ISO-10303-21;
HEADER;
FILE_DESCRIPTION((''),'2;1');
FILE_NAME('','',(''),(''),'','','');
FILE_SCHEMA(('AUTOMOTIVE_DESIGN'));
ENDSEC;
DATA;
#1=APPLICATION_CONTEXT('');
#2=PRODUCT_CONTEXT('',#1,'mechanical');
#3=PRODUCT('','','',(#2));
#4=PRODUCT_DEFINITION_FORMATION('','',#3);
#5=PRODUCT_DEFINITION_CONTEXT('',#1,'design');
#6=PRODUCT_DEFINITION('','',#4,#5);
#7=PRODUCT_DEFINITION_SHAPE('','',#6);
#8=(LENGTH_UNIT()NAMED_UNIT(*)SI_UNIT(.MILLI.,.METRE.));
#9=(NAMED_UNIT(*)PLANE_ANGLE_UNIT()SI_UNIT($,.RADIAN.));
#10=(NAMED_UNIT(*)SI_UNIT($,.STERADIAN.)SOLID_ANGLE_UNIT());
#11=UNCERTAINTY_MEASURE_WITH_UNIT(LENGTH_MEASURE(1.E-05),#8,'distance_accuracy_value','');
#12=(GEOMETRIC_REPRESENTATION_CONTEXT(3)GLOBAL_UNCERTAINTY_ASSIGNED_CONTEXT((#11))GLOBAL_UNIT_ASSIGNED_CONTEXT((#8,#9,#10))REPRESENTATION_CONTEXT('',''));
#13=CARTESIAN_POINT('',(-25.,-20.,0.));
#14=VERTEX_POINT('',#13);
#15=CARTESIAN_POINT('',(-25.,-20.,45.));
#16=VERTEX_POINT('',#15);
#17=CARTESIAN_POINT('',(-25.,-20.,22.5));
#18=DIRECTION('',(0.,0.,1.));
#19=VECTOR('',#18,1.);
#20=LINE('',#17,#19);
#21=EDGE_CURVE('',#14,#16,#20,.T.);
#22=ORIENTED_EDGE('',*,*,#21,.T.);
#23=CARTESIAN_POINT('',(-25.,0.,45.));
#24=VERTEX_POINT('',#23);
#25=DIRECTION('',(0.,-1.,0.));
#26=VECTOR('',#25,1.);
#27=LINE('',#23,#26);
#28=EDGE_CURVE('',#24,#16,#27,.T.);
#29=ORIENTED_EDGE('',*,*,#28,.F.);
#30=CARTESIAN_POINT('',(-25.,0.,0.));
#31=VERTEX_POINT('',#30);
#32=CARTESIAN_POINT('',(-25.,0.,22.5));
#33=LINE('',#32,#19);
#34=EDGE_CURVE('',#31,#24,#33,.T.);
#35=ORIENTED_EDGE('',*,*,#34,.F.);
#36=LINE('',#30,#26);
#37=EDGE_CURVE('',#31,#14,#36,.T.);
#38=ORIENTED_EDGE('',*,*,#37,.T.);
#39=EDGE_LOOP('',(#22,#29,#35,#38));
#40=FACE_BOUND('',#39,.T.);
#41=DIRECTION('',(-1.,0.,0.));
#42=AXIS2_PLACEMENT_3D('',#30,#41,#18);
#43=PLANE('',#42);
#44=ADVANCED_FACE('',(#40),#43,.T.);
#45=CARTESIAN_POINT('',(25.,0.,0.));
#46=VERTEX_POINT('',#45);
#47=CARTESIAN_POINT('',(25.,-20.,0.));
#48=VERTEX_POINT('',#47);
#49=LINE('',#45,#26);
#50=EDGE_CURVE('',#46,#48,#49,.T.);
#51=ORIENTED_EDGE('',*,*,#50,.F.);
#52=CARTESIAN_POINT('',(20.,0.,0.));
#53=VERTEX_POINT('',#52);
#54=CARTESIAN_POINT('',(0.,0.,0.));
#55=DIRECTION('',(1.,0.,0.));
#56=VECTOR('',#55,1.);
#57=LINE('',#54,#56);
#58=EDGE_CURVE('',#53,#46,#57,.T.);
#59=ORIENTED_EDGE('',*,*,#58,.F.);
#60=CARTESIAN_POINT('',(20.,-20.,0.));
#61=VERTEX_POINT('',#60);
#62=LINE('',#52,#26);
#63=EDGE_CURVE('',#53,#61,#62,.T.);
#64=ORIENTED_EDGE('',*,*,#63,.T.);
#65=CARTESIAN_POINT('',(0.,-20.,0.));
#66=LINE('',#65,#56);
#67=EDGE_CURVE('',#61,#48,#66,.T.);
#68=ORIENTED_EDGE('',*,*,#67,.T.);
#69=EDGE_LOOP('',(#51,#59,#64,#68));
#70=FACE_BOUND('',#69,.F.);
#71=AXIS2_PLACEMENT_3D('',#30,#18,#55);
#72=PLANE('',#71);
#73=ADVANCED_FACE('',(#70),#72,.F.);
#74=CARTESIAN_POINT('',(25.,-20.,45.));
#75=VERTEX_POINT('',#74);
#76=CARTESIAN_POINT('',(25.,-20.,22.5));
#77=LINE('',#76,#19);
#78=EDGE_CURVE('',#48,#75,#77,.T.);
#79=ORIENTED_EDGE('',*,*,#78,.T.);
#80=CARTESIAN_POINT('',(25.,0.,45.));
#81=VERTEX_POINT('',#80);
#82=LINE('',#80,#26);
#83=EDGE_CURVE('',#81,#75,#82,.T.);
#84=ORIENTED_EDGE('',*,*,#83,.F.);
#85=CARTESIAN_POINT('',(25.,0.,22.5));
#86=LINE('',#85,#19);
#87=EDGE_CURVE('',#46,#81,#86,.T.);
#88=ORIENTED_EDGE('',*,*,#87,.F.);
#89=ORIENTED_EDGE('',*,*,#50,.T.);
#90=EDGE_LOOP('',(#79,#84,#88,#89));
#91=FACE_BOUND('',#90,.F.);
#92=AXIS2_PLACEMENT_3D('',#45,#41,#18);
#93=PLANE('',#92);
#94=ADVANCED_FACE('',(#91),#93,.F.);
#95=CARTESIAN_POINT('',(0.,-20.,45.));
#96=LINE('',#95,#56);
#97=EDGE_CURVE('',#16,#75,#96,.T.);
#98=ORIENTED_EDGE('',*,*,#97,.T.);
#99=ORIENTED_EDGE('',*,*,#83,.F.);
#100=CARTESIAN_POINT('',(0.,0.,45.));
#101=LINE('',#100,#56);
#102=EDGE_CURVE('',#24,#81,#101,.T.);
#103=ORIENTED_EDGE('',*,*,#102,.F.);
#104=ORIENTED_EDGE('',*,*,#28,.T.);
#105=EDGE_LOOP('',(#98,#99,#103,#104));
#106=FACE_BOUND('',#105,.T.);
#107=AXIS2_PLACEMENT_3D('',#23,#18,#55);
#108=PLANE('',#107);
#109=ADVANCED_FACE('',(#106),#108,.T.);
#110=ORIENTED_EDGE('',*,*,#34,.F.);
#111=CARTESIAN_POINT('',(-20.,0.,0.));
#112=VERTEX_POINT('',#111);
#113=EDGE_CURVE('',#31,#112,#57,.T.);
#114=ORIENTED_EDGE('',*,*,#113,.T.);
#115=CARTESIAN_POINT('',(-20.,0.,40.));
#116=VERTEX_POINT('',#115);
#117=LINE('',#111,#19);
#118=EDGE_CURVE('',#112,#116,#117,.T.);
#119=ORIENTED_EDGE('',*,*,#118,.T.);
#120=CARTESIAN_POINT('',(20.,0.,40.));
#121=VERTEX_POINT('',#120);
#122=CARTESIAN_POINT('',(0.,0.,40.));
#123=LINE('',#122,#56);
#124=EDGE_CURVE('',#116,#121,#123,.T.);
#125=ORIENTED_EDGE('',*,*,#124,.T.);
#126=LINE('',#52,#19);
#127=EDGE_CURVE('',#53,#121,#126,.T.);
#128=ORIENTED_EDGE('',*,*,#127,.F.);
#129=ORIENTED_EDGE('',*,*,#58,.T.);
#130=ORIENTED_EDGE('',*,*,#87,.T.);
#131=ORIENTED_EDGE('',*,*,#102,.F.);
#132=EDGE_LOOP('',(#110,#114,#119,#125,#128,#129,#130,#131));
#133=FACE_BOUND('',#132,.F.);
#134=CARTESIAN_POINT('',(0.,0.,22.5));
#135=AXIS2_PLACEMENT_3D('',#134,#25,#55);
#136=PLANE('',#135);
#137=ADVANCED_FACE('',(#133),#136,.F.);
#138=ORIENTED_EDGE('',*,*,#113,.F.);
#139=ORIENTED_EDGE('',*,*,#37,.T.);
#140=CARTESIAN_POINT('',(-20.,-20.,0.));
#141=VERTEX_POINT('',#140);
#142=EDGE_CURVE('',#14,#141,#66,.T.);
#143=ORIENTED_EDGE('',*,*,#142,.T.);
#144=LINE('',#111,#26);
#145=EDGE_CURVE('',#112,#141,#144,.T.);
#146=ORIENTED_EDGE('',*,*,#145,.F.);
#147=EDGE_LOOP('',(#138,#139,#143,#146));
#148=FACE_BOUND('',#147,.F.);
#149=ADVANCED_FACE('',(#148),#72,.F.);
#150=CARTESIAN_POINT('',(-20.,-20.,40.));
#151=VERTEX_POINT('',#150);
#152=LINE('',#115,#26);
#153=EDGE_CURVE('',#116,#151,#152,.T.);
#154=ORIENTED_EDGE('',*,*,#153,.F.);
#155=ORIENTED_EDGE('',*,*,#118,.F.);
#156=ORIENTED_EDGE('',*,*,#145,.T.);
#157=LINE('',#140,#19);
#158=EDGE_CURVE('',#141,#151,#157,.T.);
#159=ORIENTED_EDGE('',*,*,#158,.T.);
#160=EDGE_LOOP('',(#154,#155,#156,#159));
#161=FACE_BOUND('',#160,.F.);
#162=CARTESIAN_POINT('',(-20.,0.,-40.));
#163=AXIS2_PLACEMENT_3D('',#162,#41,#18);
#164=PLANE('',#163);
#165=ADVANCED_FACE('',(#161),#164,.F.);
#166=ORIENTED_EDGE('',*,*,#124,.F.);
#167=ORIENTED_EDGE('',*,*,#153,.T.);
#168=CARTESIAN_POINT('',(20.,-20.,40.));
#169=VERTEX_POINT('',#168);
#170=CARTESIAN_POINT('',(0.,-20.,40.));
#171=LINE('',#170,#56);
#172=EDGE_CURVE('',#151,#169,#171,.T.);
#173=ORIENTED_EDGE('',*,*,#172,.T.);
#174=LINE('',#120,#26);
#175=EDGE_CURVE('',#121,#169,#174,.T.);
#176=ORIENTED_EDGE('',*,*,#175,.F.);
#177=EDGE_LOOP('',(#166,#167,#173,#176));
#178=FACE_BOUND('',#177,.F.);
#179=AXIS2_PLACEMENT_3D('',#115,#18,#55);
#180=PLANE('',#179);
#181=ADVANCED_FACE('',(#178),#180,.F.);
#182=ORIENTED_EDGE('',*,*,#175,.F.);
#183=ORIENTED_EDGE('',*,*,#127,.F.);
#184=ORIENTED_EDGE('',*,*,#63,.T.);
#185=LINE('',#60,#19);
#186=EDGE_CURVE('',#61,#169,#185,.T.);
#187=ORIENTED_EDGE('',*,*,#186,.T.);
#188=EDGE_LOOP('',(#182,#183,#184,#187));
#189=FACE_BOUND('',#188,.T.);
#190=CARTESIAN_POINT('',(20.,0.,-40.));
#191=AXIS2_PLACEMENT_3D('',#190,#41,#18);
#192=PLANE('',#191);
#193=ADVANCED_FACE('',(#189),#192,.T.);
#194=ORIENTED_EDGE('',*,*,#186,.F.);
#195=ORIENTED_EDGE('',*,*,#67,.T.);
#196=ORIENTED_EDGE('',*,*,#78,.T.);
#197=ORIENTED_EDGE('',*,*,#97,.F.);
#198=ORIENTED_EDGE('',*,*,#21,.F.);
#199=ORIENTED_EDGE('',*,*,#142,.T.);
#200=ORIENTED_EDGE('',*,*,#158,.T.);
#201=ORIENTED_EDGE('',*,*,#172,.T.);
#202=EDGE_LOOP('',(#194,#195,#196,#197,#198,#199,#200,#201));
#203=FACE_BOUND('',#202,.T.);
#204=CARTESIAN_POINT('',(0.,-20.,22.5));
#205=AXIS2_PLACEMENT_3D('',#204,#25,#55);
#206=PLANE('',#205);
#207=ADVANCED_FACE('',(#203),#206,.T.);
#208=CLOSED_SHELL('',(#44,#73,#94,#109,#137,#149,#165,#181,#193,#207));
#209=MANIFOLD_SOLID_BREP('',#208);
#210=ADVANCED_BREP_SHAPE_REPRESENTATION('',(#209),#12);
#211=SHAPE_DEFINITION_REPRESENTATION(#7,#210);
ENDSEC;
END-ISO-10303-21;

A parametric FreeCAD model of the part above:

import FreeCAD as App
import Part
import Sketcher

V = App.Vector
Q = App.Units.Quantity


def add_polygon(sketch, points):
    """Adds a closed chain of lines whose ends are joined by coincident constraints."""
    first, n = sketch.GeometryCount, len(points)
    for a, b in zip(points, points[1:] + points[:1]):
        sketch.addGeometry(Part.LineSegment(App.Vector(*a, 0), App.Vector(*b, 0)), False)
    for i in range(n):
        sketch.addConstraint(Sketcher.Constraint("Coincident", first + i, 2, first + (i + 1) % n, 1))

doc = App.newDocument("Part")
body = doc.addObject("PartDesign::Body", "Body")

# Sketch on XZ plane
sketch1 = body.newObject("Sketcher::SketchObject", "Sketch")
sketch1.AttachmentSupport = (doc.getObject("XZ_Plane"), [""])
sketch1.MapMode = "FlatFace"
add_polygon(sketch1, [(-25, 45), (-25, 0), (25, 0), (25, 45)])  # lines 0-3
sketch1.addConstraint([
    Sketcher.Constraint("Vertical", 0),
    Sketcher.Constraint("Horizontal", 1),
    Sketcher.Constraint("Vertical", 2),
    Sketcher.Constraint("Horizontal", 3),
    Sketcher.Constraint("Symmetric", 0, 2, 1, 2, -1, 1),
    Sketcher.Constraint("DistanceX", 1, 1, 1, 2, Q("50 mm")),
    Sketcher.Constraint("DistanceY", 0, 2, 0, 1, Q("45 mm")),
])
pad1 = body.newObject("PartDesign::Pad", "Pad")
pad1.Profile = sketch1
pad1.Length = 20

# Sketch on XZ plane
sketch2 = body.newObject("Sketcher::SketchObject", "Sketch001")
sketch2.AttachmentSupport = (doc.getObject("XZ_Plane"), [""])
sketch2.MapMode = "FlatFace"
add_polygon(sketch2, [(-20, 40), (-20, -40), (20, -40), (20, 40)])  # lines 0-3
sketch2.addConstraint([
    Sketcher.Constraint("Vertical", 0),
    Sketcher.Constraint("Horizontal", 1),
    Sketcher.Constraint("Vertical", 2),
    Sketcher.Constraint("Horizontal", 3),
    Sketcher.Constraint("Symmetric", 0, 2, 2, 2, -1, 1),
    Sketcher.Constraint("DistanceX", 1, 1, 1, 2, Q("40 mm")),
    Sketcher.Constraint("DistanceY", 0, 2, 0, 1, Q("80 mm")),
])
pocket1 = body.newObject("PartDesign::Pocket", "Pocket")
pocket1.Profile = sketch2
pocket1.Length = 20
pocket1.Reversed = True

doc.recompute()
